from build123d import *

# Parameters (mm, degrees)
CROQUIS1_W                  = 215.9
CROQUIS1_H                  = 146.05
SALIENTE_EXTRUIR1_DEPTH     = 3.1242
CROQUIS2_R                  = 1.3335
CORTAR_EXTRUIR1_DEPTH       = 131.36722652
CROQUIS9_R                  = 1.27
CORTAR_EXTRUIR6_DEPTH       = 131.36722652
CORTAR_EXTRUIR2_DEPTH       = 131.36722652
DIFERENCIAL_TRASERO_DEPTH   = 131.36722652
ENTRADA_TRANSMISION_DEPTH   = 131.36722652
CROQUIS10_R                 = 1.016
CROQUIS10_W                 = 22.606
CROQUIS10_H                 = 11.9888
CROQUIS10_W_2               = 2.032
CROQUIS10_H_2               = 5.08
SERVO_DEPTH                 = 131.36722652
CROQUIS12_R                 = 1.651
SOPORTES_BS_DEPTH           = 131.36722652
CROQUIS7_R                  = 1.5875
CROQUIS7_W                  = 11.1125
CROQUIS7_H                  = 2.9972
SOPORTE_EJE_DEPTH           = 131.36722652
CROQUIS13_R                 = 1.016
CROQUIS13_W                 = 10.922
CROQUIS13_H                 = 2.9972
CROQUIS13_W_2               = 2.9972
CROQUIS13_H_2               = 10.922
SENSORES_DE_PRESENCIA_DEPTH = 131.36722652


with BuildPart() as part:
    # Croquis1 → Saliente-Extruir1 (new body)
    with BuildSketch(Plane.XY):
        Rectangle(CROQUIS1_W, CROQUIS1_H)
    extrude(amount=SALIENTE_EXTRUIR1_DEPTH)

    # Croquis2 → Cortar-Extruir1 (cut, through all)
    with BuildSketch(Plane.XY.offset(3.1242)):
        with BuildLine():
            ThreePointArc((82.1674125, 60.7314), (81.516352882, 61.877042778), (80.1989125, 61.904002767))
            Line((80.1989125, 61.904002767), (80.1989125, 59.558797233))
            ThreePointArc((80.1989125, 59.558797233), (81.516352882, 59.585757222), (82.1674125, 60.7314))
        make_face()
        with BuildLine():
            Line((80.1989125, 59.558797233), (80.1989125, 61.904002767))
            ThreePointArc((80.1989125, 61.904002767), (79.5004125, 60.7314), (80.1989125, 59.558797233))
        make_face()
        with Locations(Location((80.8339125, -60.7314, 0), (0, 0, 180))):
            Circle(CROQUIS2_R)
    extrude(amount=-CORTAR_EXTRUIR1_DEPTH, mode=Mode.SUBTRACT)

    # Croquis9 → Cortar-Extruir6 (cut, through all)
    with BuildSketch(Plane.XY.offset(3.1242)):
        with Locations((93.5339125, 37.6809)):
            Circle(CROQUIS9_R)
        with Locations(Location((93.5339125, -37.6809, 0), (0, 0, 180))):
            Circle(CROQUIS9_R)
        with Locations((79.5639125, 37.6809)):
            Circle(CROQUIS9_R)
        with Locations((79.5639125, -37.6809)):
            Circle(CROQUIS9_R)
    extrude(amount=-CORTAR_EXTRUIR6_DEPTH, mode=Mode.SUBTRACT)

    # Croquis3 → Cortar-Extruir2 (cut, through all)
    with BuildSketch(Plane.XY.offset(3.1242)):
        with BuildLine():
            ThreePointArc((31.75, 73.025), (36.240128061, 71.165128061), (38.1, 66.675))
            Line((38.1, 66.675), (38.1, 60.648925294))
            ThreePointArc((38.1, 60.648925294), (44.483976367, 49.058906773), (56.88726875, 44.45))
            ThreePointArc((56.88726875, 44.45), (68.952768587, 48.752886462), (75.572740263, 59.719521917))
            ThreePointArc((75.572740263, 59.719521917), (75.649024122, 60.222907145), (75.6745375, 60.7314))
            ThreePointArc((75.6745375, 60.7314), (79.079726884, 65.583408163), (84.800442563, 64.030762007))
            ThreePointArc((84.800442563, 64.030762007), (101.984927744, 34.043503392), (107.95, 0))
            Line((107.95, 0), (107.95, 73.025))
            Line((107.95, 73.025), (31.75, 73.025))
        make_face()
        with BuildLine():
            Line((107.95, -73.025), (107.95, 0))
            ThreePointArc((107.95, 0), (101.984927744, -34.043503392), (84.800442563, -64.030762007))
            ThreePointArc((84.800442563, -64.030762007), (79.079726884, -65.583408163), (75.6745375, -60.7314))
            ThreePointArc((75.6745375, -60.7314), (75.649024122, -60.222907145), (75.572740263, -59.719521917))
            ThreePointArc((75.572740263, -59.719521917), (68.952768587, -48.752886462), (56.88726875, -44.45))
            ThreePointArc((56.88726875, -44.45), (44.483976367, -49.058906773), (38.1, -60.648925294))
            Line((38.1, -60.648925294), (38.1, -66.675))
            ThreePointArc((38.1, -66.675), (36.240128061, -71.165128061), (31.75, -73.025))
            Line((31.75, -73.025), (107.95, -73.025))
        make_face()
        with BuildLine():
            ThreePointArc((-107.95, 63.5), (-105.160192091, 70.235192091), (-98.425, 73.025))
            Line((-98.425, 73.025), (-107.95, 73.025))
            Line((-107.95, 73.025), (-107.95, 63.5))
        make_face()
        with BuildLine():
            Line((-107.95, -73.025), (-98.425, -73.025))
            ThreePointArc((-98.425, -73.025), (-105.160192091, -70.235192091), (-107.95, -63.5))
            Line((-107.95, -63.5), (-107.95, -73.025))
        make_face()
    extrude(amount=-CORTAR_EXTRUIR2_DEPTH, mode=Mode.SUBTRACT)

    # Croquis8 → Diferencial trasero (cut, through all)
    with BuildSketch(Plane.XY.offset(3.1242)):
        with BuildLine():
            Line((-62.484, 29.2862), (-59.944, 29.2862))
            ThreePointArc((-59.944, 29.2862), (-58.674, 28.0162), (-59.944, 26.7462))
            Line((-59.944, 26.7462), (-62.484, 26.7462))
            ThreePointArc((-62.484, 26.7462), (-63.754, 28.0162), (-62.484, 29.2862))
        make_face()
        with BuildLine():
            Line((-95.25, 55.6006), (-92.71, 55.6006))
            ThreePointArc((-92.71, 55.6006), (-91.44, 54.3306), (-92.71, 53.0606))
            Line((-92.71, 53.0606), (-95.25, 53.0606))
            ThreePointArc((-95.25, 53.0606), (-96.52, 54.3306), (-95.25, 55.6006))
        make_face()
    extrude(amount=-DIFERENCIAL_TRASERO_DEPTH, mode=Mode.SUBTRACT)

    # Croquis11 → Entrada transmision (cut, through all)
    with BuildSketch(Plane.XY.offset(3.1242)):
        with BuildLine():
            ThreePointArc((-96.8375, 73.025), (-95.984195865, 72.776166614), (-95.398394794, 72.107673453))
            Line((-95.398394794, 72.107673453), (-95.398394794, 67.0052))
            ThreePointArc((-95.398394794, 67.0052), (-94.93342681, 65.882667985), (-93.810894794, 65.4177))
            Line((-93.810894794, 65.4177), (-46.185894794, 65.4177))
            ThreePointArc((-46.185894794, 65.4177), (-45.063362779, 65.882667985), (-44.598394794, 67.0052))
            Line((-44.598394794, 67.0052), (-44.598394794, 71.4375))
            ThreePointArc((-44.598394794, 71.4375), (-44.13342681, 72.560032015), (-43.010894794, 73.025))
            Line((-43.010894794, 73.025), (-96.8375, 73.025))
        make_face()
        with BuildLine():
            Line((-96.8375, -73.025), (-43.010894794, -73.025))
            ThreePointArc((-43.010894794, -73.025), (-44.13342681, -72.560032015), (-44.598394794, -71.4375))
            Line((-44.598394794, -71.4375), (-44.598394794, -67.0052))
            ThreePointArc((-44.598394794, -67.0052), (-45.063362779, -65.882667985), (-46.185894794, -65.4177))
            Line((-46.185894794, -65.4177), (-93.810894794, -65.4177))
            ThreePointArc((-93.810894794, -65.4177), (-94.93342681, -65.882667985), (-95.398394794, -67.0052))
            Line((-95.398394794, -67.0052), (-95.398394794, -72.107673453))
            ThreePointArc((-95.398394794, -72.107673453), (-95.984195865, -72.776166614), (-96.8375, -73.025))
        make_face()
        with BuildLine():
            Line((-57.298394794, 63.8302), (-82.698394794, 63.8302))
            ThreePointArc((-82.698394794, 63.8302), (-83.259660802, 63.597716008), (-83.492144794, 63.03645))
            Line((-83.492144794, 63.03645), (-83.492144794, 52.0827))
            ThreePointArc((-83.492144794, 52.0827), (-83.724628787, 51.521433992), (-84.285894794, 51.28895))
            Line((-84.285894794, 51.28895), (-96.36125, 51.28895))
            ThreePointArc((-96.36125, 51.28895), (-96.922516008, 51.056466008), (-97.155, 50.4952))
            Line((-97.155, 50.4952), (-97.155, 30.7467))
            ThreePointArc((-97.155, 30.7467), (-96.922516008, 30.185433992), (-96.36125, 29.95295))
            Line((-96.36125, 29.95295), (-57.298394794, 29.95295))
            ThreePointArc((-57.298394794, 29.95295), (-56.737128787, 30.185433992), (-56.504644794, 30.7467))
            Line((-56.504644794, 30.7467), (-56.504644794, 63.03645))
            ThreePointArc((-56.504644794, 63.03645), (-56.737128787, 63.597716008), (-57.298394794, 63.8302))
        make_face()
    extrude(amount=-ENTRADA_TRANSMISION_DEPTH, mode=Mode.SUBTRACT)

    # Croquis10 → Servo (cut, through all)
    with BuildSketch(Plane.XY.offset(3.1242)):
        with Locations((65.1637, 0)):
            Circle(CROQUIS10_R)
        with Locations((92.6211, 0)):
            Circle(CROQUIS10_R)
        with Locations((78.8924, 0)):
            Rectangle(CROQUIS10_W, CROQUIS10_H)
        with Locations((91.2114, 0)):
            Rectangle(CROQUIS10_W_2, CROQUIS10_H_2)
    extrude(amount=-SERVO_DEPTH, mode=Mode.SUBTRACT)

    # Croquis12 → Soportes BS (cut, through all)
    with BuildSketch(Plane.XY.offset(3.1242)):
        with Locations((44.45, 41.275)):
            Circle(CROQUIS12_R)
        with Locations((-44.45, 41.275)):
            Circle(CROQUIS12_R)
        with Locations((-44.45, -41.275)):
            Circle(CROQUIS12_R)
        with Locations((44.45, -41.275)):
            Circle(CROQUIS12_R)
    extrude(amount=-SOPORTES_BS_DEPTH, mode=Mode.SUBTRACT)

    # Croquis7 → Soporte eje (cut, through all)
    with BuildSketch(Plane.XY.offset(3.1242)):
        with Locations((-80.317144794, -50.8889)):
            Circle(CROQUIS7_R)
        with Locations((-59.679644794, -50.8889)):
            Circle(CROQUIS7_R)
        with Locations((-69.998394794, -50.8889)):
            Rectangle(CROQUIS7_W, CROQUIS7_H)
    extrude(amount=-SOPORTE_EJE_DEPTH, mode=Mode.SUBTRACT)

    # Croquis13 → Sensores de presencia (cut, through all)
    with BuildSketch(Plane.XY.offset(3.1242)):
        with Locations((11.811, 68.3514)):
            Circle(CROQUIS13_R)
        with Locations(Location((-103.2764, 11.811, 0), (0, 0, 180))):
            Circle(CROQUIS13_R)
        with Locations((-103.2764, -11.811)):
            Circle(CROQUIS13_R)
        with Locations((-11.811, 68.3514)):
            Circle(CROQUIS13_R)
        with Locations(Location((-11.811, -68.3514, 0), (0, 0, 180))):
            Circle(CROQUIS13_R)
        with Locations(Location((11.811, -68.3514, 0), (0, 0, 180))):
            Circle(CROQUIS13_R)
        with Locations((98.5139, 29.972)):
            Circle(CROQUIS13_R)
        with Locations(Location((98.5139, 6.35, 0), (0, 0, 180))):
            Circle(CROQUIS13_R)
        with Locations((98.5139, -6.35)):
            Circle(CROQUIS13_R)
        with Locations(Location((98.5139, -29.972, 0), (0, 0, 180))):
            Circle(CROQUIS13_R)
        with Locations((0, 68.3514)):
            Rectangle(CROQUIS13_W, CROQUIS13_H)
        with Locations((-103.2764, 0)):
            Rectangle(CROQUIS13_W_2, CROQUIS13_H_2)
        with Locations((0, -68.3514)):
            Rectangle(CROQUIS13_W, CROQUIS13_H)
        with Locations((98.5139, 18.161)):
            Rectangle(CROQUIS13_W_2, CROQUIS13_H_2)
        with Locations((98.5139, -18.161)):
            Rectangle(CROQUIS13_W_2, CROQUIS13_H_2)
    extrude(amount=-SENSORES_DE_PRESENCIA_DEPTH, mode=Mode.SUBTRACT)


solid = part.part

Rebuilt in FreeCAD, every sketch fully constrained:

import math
import FreeCAD as App
import Part
import Sketcher
from FreeCAD import Vector
Q = App.Units.Quantity

doc = App.newDocument("Part")
body = doc.addObject("PartDesign::Body", "Body")

# Sketch on XY plane
sketch1 = doc.addObject("Sketcher::SketchObject", "Sketch")
body.addObject(sketch1)
sketch1.AttachmentSupport = (doc.XY_Plane, [""])
sketch1.MapMode = "FlatFace"
sketch1.addGeometry([
    Part.LineSegment(Vector(-107.95, 73.025, 0), Vector(-107.95, -73.025, 0)),
    Part.LineSegment(Vector(-107.95, -73.025, 0), Vector(107.95, -73.025, 0)),
    Part.LineSegment(Vector(107.95, -73.025, 0), Vector(107.95, 73.025, 0)),
    Part.LineSegment(Vector(107.95, 73.025, 0), Vector(-107.95, 73.025, 0)),
], False)
sketch1.addConstraint([
    Sketcher.Constraint("Coincident", 0, 2, 1, 1),
    Sketcher.Constraint("Coincident", 1, 2, 2, 1),
    Sketcher.Constraint("Coincident", 2, 2, 3, 1),
    Sketcher.Constraint("Coincident", 3, 2, 0, 1),
    Sketcher.Constraint("Vertical", 0),
    Sketcher.Constraint("Horizontal", 1),
    Sketcher.Constraint("Vertical", 2),
    Sketcher.Constraint("Horizontal", 3),
    Sketcher.Constraint("Symmetric", 0, 2, 2, 2, -1, 1),
    Sketcher.Constraint("DistanceX", 1, 1, 1, 2, Q("8.5 in")),
    Sketcher.Constraint("DistanceY", 0, 2, 0, 1, Q("5.75 in")),
])
pad1 = doc.addObject("PartDesign::Pad", "Pad")
body.addObject(pad1)
pad1.Profile = sketch1
pad1.Length = Q("0.123 in")

# Sketch on XY plane
sketch2 = doc.addObject("Sketcher::SketchObject", "Sketch001")
body.addObject(sketch2)
sketch2.AttachmentSupport = (doc.XY_Plane, [""])
sketch2.MapMode = "FlatFace"
sketch2.AttachmentOffset = App.Placement(Vector(0, 0, 0.123 * 25.4), App.Rotation())
sketch2.addGeometry([
    Part.ArcOfCircle(Part.Circle(Vector(80.833912, 60.7314, 0), Vector(0, 0, 1), 1.3335), math.radians(0), math.radians(118.43689)),
    Part.ArcOfCircle(Part.Circle(Vector(80.833912, 60.7314, 0), Vector(0, 0, 1), 1.3335), math.radians(118.43689), math.radians(241.56311)),
    Part.ArcOfCircle(Part.Circle(Vector(80.833912, 60.7314, 0), Vector(0, 0, 1), 1.3335), math.radians(-118.43689), math.radians(0)),
    Part.Circle(Vector(80.833912, -60.7314, 0), Vector(0, 0, 1), 1.3335),
], False)
sketch2.addConstraint([
    Sketcher.Constraint("Tangent", 0, 2, 1, 1),
    Sketcher.Constraint("Tangent", 1, 2, 2, 1),
    Sketcher.Constraint("Tangent", 2, 2, 0, 1),
    Sketcher.Constraint("Equal", 2, 3),
    Sketcher.Constraint("Symmetric", 0, 3, 3, 3, -1),
    Sketcher.Constraint("Horizontal", 1, 3, 2, 2),
    Sketcher.Constraint("Vertical", 0, 2, 1, 2),
    Sketcher.Constraint("Diameter", 3, Q("0.105 in")),
    Sketcher.Constraint("DistanceY", -1, 1, 0, 3, Q("2.391 in")),
    Sketcher.Constraint("DistanceX", 0, 2, 1, 3, Q("0.025 in")),
    Sketcher.Constraint("DistanceX", -1, 1, 0, 3, 80.833912),
])
pocket1 = doc.addObject("PartDesign::Pocket", "Pocket")
body.addObject(pocket1)
pocket1.Profile = sketch2
pocket1.Type = "ThroughAll"

# Sketch on XY plane
sketch3 = doc.addObject("Sketcher::SketchObject", "Sketch002")
body.addObject(sketch3)
sketch3.AttachmentSupport = (doc.XY_Plane, [""])
sketch3.MapMode = "FlatFace"
sketch3.AttachmentOffset = App.Placement(Vector(0, 0, 0.123 * 25.4), App.Rotation())
sketch3.addGeometry([
    Part.Circle(Vector(93.533912, 37.6809, 0), Vector(0, 0, 1), 1.27),
    Part.Circle(Vector(93.533912, -37.6809, 0), Vector(0, 0, 1), 1.27),
    Part.Circle(Vector(79.563913, 37.6809, 0), Vector(0, 0, 1), 1.27),
    Part.Circle(Vector(79.563913, -37.6809, 0), Vector(0, 0, 1), 1.27),
], False)
sketch3.addConstraint([
    Sketcher.Constraint("Equal", 0, 1),
    Sketcher.Constraint("Equal", 1, 2),
    Sketcher.Constraint("Equal", 2, 3),
    Sketcher.Constraint("Symmetric", 0, 3, 1, 3, -1),
    Sketcher.Constraint("Symmetric", 2, 3, 3, 3, -1),
    Sketcher.Constraint("Horizontal", 0, 3, 2, 3),
    Sketcher.Constraint("Diameter", 0, Q("0.1 in")),
    Sketcher.Constraint("DistanceX", 2, 3, 0, 3, Q("0.55 in")),
    Sketcher.Constraint("DistanceY", 1, 3, 0, 3, Q("2.967 in")),
    Sketcher.Constraint("DistanceX", -1, 1, 0, 3, 93.533912),
])
pocket2 = doc.addObject("PartDesign::Pocket", "Pocket001")
body.addObject(pocket2)
pocket2.Profile = sketch3
pocket2.Type = "ThroughAll"

# Sketch on XY plane
sketch4 = doc.addObject("Sketcher::SketchObject", "Sketch003")
body.addObject(sketch4)
sketch4.AttachmentSupport = (doc.XY_Plane, [""])
sketch4.MapMode = "FlatFace"
sketch4.AttachmentOffset = App.Placement(Vector(0, 0, 0.123 * 25.4), App.Rotation())
sketch4.addGeometry([
    Part.ArcOfCircle(Part.Circle(Vector(31.75, 66.675, 0), Vector(0, 0, 1), 6.35), math.radians(0), math.radians(90)),  # 0
    Part.LineSegment(Vector(38.1, 66.675, 0), Vector(38.1, 60.648925, 0)),  # 1
    Part.ArcOfCircle(Part.Circle(Vector(56.887269, 63.444058, 0), Vector(0, 0, 1), 18.994058), math.radians(-171.537721), math.radians(-90)),  # 2
    Part.ArcOfCircle(Part.Circle(Vector(56.887269, 63.517563, 0), Vector(0, 0, 1), 19.067563), math.radians(-90), math.radians(-11.489515)),  # 3
    Part.ArcOfCircle(Part.Circle(Vector(70.594537, 60.7314, 0), Vector(0, 0, 1), 5.08), math.radians(-11.489514), math.radians(0)),  # 4
    Part.ArcOfCircle(Part.Circle(Vector(80.833912, 60.7314, 0), Vector(0, 0, 1), 5.159375), math.radians(39.753704), math.radians(180)),  # 5
    Part.ArcOfCircle(Part.Circle(Vector(7.821941, 0, 0), Vector(0, 0, 1), 100.128059), math.radians(0), math.radians(39.753704)),  # 6
    Part.LineSegment(Vector(107.95, 0, 0), Vector(107.95, 73.025, 0)),  # 7
    Part.LineSegment(Vector(107.95, 73.025, 0), Vector(31.75, 73.025, 0)),  # 8
    Part.LineSegment(Vector(107.95, -73.025, 0), Vector(107.95, 0, 0)),  # 9
    Part.ArcOfCircle(Part.Circle(Vector(7.821941, 0, 0), Vector(0, 0, 1), 100.128059), math.radians(-39.753704), math.radians(0)),  # 10
    Part.ArcOfCircle(Part.Circle(Vector(80.833912, -60.7314, 0), Vector(0, 0, 1), 5.159375), math.radians(180), math.radians(320.246296)),  # 11
    Part.ArcOfCircle(Part.Circle(Vector(70.594537, -60.7314, 0), Vector(0, 0, 1), 5.08), math.radians(0), math.radians(11.489514)),  # 12
    Part.ArcOfCircle(Part.Circle(Vector(56.887269, -63.517563, 0), Vector(0, 0, 1), 19.067563), math.radians(11.489515), math.radians(90)),  # 13
    Part.ArcOfCircle(Part.Circle(Vector(56.887269, -63.444058, 0), Vector(0, 0, 1), 18.994058), math.radians(90), math.radians(171.537721)),  # 14
    Part.LineSegment(Vector(38.1, -60.648925, 0), Vector(38.1, -66.675, 0)),  # 15
    Part.ArcOfCircle(Part.Circle(Vector(31.75, -66.675, 0), Vector(0, 0, 1), 6.35), math.radians(-90), math.radians(0)),  # 16
    Part.LineSegment(Vector(31.75, -73.025, 0), Vector(107.95, -73.025, 0)),  # 17
    Part.ArcOfCircle(Part.Circle(Vector(-98.425, 63.5, 0), Vector(0, 0, 1), 9.525), math.radians(90), math.radians(180)),  # 18
    Part.LineSegment(Vector(-98.425, 73.025, 0), Vector(-107.95, 73.025, 0)),  # 19
    Part.LineSegment(Vector(-107.95, 73.025, 0), Vector(-107.95, 63.5, 0)),  # 20
    Part.LineSegment(Vector(-107.95, -73.025, 0), Vector(-98.425, -73.025, 0)),  # 21
    Part.ArcOfCircle(Part.Circle(Vector(-98.425, -63.5, 0), Vector(0, 0, 1), 9.525), math.radians(180), math.radians(270)),  # 22
    Part.LineSegment(Vector(-107.95, -63.5, 0), Vector(-107.95, -73.025, 0)),  # 23
], False)
sketch4.addConstraint([
    Sketcher.Constraint("Tangent", 0, 1, 1, 1),
    Sketcher.Constraint("Coincident", 1, 2, 2, 1),
    Sketcher.Constraint("Tangent", 2, 2, 3, 1),
    Sketcher.Constraint("Tangent", 3, 2, 4, 1),
    Sketcher.Constraint("Tangent", 4, 2, 5, 2),
    Sketcher.Constraint("Tangent", 5, 1, 6, 2),
    Sketcher.Constraint("Tangent", 6, 1, 7, 1),
    Sketcher.Constraint("Coincident", 7, 2, 8, 1),
    Sketcher.Constraint("Tangent", 8, 2, 0, 2),
    Sketcher.Constraint("Tangent", 9, 2, 10, 2),
    Sketcher.Constraint("Tangent", 10, 1, 11, 2),
    Sketcher.Constraint("Tangent", 11, 1, 12, 1),
    Sketcher.Constraint("Tangent", 12, 2, 13, 1),
    Sketcher.Constraint("Tangent", 13, 2, 14, 1),
    Sketcher.Constraint("Coincident", 14, 2, 15, 1),
    Sketcher.Constraint("Tangent", 15, 2, 16, 2),
    Sketcher.Constraint("Tangent", 16, 1, 17, 1),
    Sketcher.Constraint("Coincident", 17, 2, 9, 1),
    Sketcher.Constraint("Tangent", 18, 1, 19, 1),
    Sketcher.Constraint("Coincident", 19, 2, 20, 1),
    Sketcher.Constraint("Tangent", 20, 2, 18, 2),
    Sketcher.Constraint("Tangent", 21, 2, 22, 2),
    Sketcher.Constraint("Tangent", 22, 1, 23, 1),
    Sketcher.Constraint("Coincident", 23, 2, 21, 1),
    Sketcher.Constraint("Vertical", 1),
    Sketcher.Constraint("Vertical", 7),
    Sketcher.Constraint("Horizontal", 8),
    Sketcher.Constraint("Vertical", 9),
    Sketcher.Constraint("Vertical", 15),
    Sketcher.Constraint("Horizontal", 17),
    Sketcher.Constraint("Horizontal", 19),
    Sketcher.Constraint("Vertical", 20),
    Sketcher.Constraint("Horizontal", 21),
    Sketcher.Constraint("Vertical", 23),
    Sketcher.Constraint("Coincident", 10, 3, 6, 3),
    Sketcher.Constraint("Equal", 6, 10),
    Sketcher.Constraint("Equal", 5, 11),
    Sketcher.Constraint("Equal", 4, 12),
    Sketcher.Constraint("Equal", 3, 13),
    Sketcher.Constraint("Equal", 2, 14),
    Sketcher.Constraint("Equal", 0, 16),
    Sketcher.Constraint("Equal", 18, 22),
    Sketcher.Constraint("Symmetric", 17, 2, 19, 2, -1, 1),
    Sketcher.Constraint("Symmetric", 7, 2, 23, 2, -1, 1),
    Sketcher.Constraint("Symmetric", 5, 3, 11, 3, -1),
    Sketcher.Constraint("Symmetric", 3, 3, 13, 3, -1),
    Sketcher.Constraint("Symmetric", 0, 3, 16, 3, -1),
    Sketcher.Constraint("Horizontal", 4, 3, 5, 3),
    Sketcher.Constraint("Vertical", 2, 3, 3, 3),
    Sketcher.Constraint("Vertical", 13, 3, 14, 3),
    Sketcher.Constraint("Radius", 4, Q("0.2 in")),
    Sketcher.Constraint("DistanceX", 8, 2, 8, 1, Q("3 in")),
    Sketcher.Constraint("Radius", 0, Q("0.25 in")),
    Sketcher.Constraint("Radius", 5, Q("0.203125 in")),
    Sketcher.Constraint("Radius", 18, Q("0.375 in")),
    Sketcher.Constraint("DistanceY", 22, 3, 18, 3, Q("5 in")),
    Sketcher.Constraint("DistanceX", -1, 1, 0, 1, Q("1.5 in")),
    Sketcher.Constraint("DistanceY", -1, 1, 2, 2, Q("1.75 in")),
    Sketcher.Constraint("DistanceY", -1, 1, 4, 3, Q("2.391 in")),
    Sketcher.Constraint("Radius", 6, 100.128059),
    Sketcher.Constraint("Radius", 2, 18.994058),
    Sketcher.Constraint("Radius", 3, 19.067563),
])
pocket3 = doc.addObject("PartDesign::Pocket", "Pocket002")
body.addObject(pocket3)
pocket3.Profile = sketch4
pocket3.Type = "ThroughAll"

# Sketch on XY plane
sketch5 = doc.addObject("Sketcher::SketchObject", "Sketch004")
body.addObject(sketch5)
sketch5.AttachmentSupport = (doc.XY_Plane, [""])
sketch5.MapMode = "FlatFace"
sketch5.AttachmentOffset = App.Placement(Vector(0, 0, 0.123 * 25.4), App.Rotation())
sketch5.addGeometry([
    Part.LineSegment(Vector(-59.944, 29.2862, 0), Vector(-62.484, 29.2862, 0)),  # 0
    Part.ArcOfCircle(Part.Circle(Vector(-62.484, 28.0162, 0), Vector(0, 0, 1), 1.27), math.radians(90), math.radians(270)),  # 1
    Part.LineSegment(Vector(-62.484, 26.7462, 0), Vector(-59.944, 26.7462, 0)),  # 2
    Part.ArcOfCircle(Part.Circle(Vector(-59.944, 28.0162, 0), Vector(0, 0, 1), 1.27), math.radians(-90), math.radians(90)),  # 3
    Part.LineSegment(Vector(-92.71, 55.6006, 0), Vector(-95.25, 55.6006, 0)),  # 4
    Part.ArcOfCircle(Part.Circle(Vector(-95.25, 54.3306, 0), Vector(0, 0, 1), 1.27), math.radians(90), math.radians(270)),  # 5
    Part.LineSegment(Vector(-95.25, 53.0606, 0), Vector(-92.71, 53.0606, 0)),  # 6
    Part.ArcOfCircle(Part.Circle(Vector(-92.71, 54.3306, 0), Vector(0, 0, 1), 1.27), math.radians(-90), math.radians(90)),  # 7
], False)
sketch5.addConstraint([
    Sketcher.Constraint("Tangent", 0, 2, 1, 1),
    Sketcher.Constraint("Tangent", 1, 2, 2, 1),
    Sketcher.Constraint("Tangent", 2, 2, 3, 1),
    Sketcher.Constraint("Tangent", 3, 2, 0, 1),
    Sketcher.Constraint("Tangent", 4, 2, 5, 1),
    Sketcher.Constraint("Tangent", 5, 2, 6, 1),
    Sketcher.Constraint("Tangent", 6, 2, 7, 1),
    Sketcher.Constraint("Tangent", 7, 2, 4, 1),
    Sketcher.Constraint("Horizontal", 0),
    Sketcher.Constraint("Horizontal", 2),
    Sketcher.Constraint("Horizontal", 4),
    Sketcher.Constraint("Horizontal", 6),
    Sketcher.Constraint("Equal", 3, 5),
    Sketcher.Constraint("Equal", 2, 4),
    Sketcher.Constraint("Radius", 1, Q("0.05 in")),
    Sketcher.Constraint("DistanceX", 0, 2, 0, 1, Q("0.1 in")),
    Sketcher.Constraint("DistanceX", 1, 3, -1, 1, Q("2.46 in")),
    Sketcher.Constraint("DistanceX", 5, 3, -1, 1, Q("3.75 in")),
    Sketcher.Constraint("DistanceY", -1, 1, 1, 3, Q("1.103 in")),
    Sketcher.Constraint("DistanceY", -1, 1, 5, 3, Q("2.139 in")),
])
pocket4 = doc.addObject("PartDesign::Pocket", "Pocket003")
body.addObject(pocket4)
pocket4.Profile = sketch5
pocket4.Type = "ThroughAll"

# Sketch on XY plane
sketch6 = doc.addObject("Sketcher::SketchObject", "Sketch005")
body.addObject(sketch6)
sketch6.AttachmentSupport = (doc.XY_Plane, [""])
sketch6.MapMode = "FlatFace"
sketch6.AttachmentOffset = App.Placement(Vector(0, 0, 0.123 * 25.4), App.Rotation())
sketch6.addGeometry([
    Part.ArcOfCircle(Part.Circle(Vector(-96.8375, 71.4375, 0), Vector(0, 0, 1), 1.5875), math.radians(24.970812), math.radians(90)),  # 0
    Part.LineSegment(Vector(-95.398395, 72.107673, 0), Vector(-95.398395, 67.0052, 0)),  # 1
    Part.ArcOfCircle(Part.Circle(Vector(-93.810895, 67.0052, 0), Vector(0, 0, 1), 1.5875), math.radians(180), math.radians(270)),  # 2
    Part.LineSegment(Vector(-93.810895, 65.4177, 0), Vector(-46.185895, 65.4177, 0)),  # 3
    Part.ArcOfCircle(Part.Circle(Vector(-46.185895, 67.0052, 0), Vector(0, 0, 1), 1.5875), math.radians(-90), math.radians(0)),  # 4
    Part.LineSegment(Vector(-44.598395, 67.0052, 0), Vector(-44.598395, 71.4375, 0)),  # 5
    Part.ArcOfCircle(Part.Circle(Vector(-43.010895, 71.4375, 0), Vector(0, 0, 1), 1.5875), math.radians(90), math.radians(180)),  # 6
    Part.LineSegment(Vector(-43.010895, 73.025, 0), Vector(-96.8375, 73.025, 0)),  # 7
    Part.LineSegment(Vector(-96.8375, -73.025, 0), Vector(-43.010895, -73.025, 0)),  # 8
    Part.ArcOfCircle(Part.Circle(Vector(-43.010895, -71.4375, 0), Vector(0, 0, 1), 1.5875), math.radians(180), math.radians(270)),  # 9
    Part.LineSegment(Vector(-44.598395, -71.4375, 0), Vector(-44.598395, -67.0052, 0)),  # 10
    Part.ArcOfCircle(Part.Circle(Vector(-46.185895, -67.0052, 0), Vector(0, 0, 1), 1.5875), math.radians(0), math.radians(90)),  # 11
    Part.LineSegment(Vector(-46.185895, -65.4177, 0), Vector(-93.810895, -65.4177, 0)),  # 12
    Part.ArcOfCircle(Part.Circle(Vector(-93.810895, -67.0052, 0), Vector(0, 0, 1), 1.5875), math.radians(90), math.radians(180)),  # 13
    Part.LineSegment(Vector(-95.398395, -67.0052, 0), Vector(-95.398395, -72.107673, 0)),  # 14
    Part.ArcOfCircle(Part.Circle(Vector(-96.8375, -71.4375, 0), Vector(0, 0, 1), 1.5875), math.radians(-90), math.radians(-24.970812)),  # 15
    Part.LineSegment(Vector(-57.298395, 63.8302, 0), Vector(-82.698395, 63.8302, 0)),  # 16
    Part.ArcOfCircle(Part.Circle(Vector(-82.698395, 63.03645, 0), Vector(0, 0, 1), 0.79375), math.radians(90), math.radians(180)),  # 17
    Part.LineSegment(Vector(-83.492145, 63.03645, 0), Vector(-83.492145, 52.0827, 0)),  # 18
    Part.ArcOfCircle(Part.Circle(Vector(-84.285895, 52.0827, 0), Vector(0, 0, 1), 0.79375), math.radians(-90), math.radians(0)),  # 19
    Part.LineSegment(Vector(-84.285895, 51.28895, 0), Vector(-96.36125, 51.28895, 0)),  # 20
    Part.ArcOfCircle(Part.Circle(Vector(-96.36125, 50.4952, 0), Vector(0, 0, 1), 0.79375), math.radians(90), math.radians(180)),  # 21
    Part.LineSegment(Vector(-97.155, 50.4952, 0), Vector(-97.155, 30.7467, 0)),  # 22
    Part.ArcOfCircle(Part.Circle(Vector(-96.36125, 30.7467, 0), Vector(0, 0, 1), 0.79375), math.radians(180), math.radians(270)),  # 23
    Part.LineSegment(Vector(-96.36125, 29.95295, 0), Vector(-57.298395, 29.95295, 0)),  # 24
    Part.ArcOfCircle(Part.Circle(Vector(-57.298395, 30.7467, 0), Vector(0, 0, 1), 0.79375), math.radians(-90), math.radians(0)),  # 25
    Part.LineSegment(Vector(-56.504645, 30.7467, 0), Vector(-56.504645, 63.03645, 0)),  # 26
    Part.ArcOfCircle(Part.Circle(Vector(-57.298395, 63.03645, 0), Vector(0, 0, 1), 0.79375), math.radians(0), math.radians(90)),  # 27
], False)
sketch6.addConstraint([
    Sketcher.Constraint("Coincident", 0, 1, 1, 1),
    Sketcher.Constraint("Tangent", 1, 2, 2, 1),
    Sketcher.Constraint("Tangent", 2, 2, 3, 1),
    Sketcher.Constraint("Tangent", 3, 2, 4, 1),
    Sketcher.Constraint("Tangent", 4, 2, 5, 1),
    Sketcher.Constraint("Tangent", 5, 2, 6, 2),
    Sketcher.Constraint("Tangent", 6, 1, 7, 1),
    Sketcher.Constraint("Tangent", 7, 2, 0, 2),
    Sketcher.Constraint("Tangent", 8, 2, 9, 2),
    Sketcher.Constraint("Tangent", 9, 1, 10, 1),
    Sketcher.Constraint("Tangent", 10, 2, 11, 1),
    Sketcher.Constraint("Tangent", 11, 2, 12, 1),
    Sketcher.Constraint("Tangent", 12, 2, 13, 1),
    Sketcher.Constraint("Tangent", 13, 2, 14, 1),
    Sketcher.Constraint("Coincident", 14, 2, 15, 2),
    Sketcher.Constraint("Tangent", 15, 1, 8, 1),
    Sketcher.Constraint("Tangent", 16, 2, 17, 1),
    Sketcher.Constraint("Tangent", 17, 2, 18, 1),
    Sketcher.Constraint("Tangent", 18, 2, 19, 2),
    Sketcher.Constraint("Tangent", 19, 1, 20, 1),
    Sketcher.Constraint("Tangent", 20, 2, 21, 1),
    Sketcher.Constraint("Tangent", 21, 2, 22, 1),
    Sketcher.Constraint("Tangent", 22, 2, 23, 1),
    Sketcher.Constraint("Tangent", 23, 2, 24, 1),
    Sketcher.Constraint("Tangent", 24, 2, 25, 1),
    Sketcher.Constraint("Tangent", 25, 2, 26, 1),
    Sketcher.Constraint("Tangent", 26, 2, 27, 1),
    Sketcher.Constraint("Tangent", 27, 2, 16, 1),
    Sketcher.Constraint("Vertical", 1),
    Sketcher.Constraint("Horizontal", 3),
    Sketcher.Constraint("Vertical", 5),
    Sketcher.Constraint("Horizontal", 7),
    Sketcher.Constraint("Horizontal", 8),
    Sketcher.Constraint("Vertical", 10),
    Sketcher.Constraint("Horizontal", 12),
    Sketcher.Constraint("Vertical", 14),
    Sketcher.Constraint("Horizontal", 16),
    Sketcher.Constraint("Vertical", 18),
    Sketcher.Constraint("Horizontal", 20),
    Sketcher.Constraint("Vertical", 22),
    Sketcher.Constraint("Horizontal", 24),
    Sketcher.Constraint("Vertical", 26),
    Sketcher.Constraint("Equal", 0, 2),
    Sketcher.Constraint("Equal", 2, 4),
    Sketcher.Constraint("Equal", 4, 6),
    Sketcher.Constraint("Equal", 6, 9),
    Sketcher.Constraint("Equal", 9, 11),
    Sketcher.Constraint("Equal", 11, 13),
    Sketcher.Constraint("Equal", 13, 15),
    Sketcher.Constraint("Equal", 17, 19),
    Sketcher.Constraint("Equal", 19, 21),
    Sketcher.Constraint("Equal", 21, 23),
    Sketcher.Constraint("Equal", 23, 25),
    Sketcher.Constraint("Equal", 25, 27),
    Sketcher.Constraint("Symmetric", 6, 3, 9, 3, -1),
    Sketcher.Constraint("Symmetric", 2, 3, 13, 3, -1),
    Sketcher.Constraint("Vertical", 0, 3, 15, 3),
    Sketcher.Constraint("DistanceX", 16, 2, 16, 1, Q("1 in")),
    Sketcher.Constraint("Radius", 0, Q("0.0625 in")),
    Sketcher.Constraint("Radius", 17, Q("0.03125 in")),
    Sketcher.Constraint("DistanceX", 2, 3, 6, 3, Q("2 in")),
    Sketcher.Constraint("DistanceX", 19, 3, 4, 3, Q("1.5 in")),
    Sketcher.Constraint("DistanceY", 21, 3, 2, 3, Q("0.65 in")),
    Sketcher.Constraint("DistanceY", 23, 3, 19, 3, Q("0.84 in")),
    Sketcher.Constraint("DistanceY", 5, 1, 5, 2, Q("0.1745 in")),
    Sketcher.Constraint("DistanceX", 0, 3, -1, 1, Q("3.8125 in")),
    Sketcher.Constraint("DistanceY", -1, 1, 0, 3, Q("2.8125 in")),
    Sketcher.Constraint("DistanceY", -1, 1, 16, 2, Q("2.513 in")),
    Sketcher.Constraint("DistanceX", 21, 2, -1, 1, Q("3.825 in")),
    Sketcher.Constraint("DistanceX", 7, 2, 7, 1, 53.826605),
])
pocket5 = doc.addObject("PartDesign::Pocket", "Pocket004")
body.addObject(pocket5)
pocket5.Profile = sketch6
pocket5.Type = "ThroughAll"

# Sketch on XY plane
sketch7 = doc.addObject("Sketcher::SketchObject", "Sketch006")
body.addObject(sketch7)
sketch7.AttachmentSupport = (doc.XY_Plane, [""])
sketch7.MapMode = "FlatFace"
sketch7.AttachmentOffset = App.Placement(Vector(0, 0, 0.123 * 25.4), App.Rotation())
sketch7.addGeometry([
    Part.Circle(Vector(65.1637, 0, 0), Vector(0, 0, 1), 1.016),  # 0
    Part.ArcOfCircle(Part.Circle(Vector(92.6211, 0, 0), Vector(0, 0, 1), 1.016), math.radians(-112.799031), math.radians(112.799031)),  # 1
    Part.LineSegment(Vector(92.2274, 0.93662, 0), Vector(92.2274, 2.54, 0)),  # 2
    Part.LineSegment(Vector(92.2274, 2.54, 0), Vector(90.1954, 2.54, 0)),  # 3
    Part.LineSegment(Vector(90.1954, 2.54, 0), Vector(90.1954, 5.9944, 0)),  # 4
    Part.LineSegment(Vector(90.1954, 5.9944, 0), Vector(67.5894, 5.9944, 0)),  # 5
    Part.LineSegment(Vector(67.5894, 5.9944, 0), Vector(67.5894, -5.9944, 0)),  # 6
    Part.LineSegment(Vector(67.5894, -5.9944, 0), Vector(90.1954, -5.9944, 0)),  # 7
    Part.LineSegment(Vector(90.1954, -5.9944, 0), Vector(90.1954, -2.54, 0)),  # 8
    Part.LineSegment(Vector(90.1954, -2.54, 0), Vector(92.2274, -2.54, 0)),  # 9
    Part.LineSegment(Vector(92.2274, -2.54, 0), Vector(92.2274, -0.93662, 0)),  # 10
], False)
sketch7.addConstraint([
    Sketcher.Constraint("Coincident", 1, 2, 2, 1),
    Sketcher.Constraint("Coincident", 2, 2, 3, 1),
    Sketcher.Constraint("Coincident", 3, 2, 4, 1),
    Sketcher.Constraint("Coincident", 4, 2, 5, 1),
    Sketcher.Constraint("Coincident", 5, 2, 6, 1),
    Sketcher.Constraint("Coincident", 6, 2, 7, 1),
    Sketcher.Constraint("Coincident", 7, 2, 8, 1),
    Sketcher.Constraint("Coincident", 8, 2, 9, 1),
    Sketcher.Constraint("Coincident", 9, 2, 10, 1),
    Sketcher.Constraint("Coincident", 10, 2, 1, 1),
    Sketcher.Constraint("Vertical", 2),
    Sketcher.Constraint("Horizontal", 3),
    Sketcher.Constraint("Vertical", 4),
    Sketcher.Constraint("Horizontal", 5),
    Sketcher.Constraint("Vertical", 6),
    Sketcher.Constraint("Horizontal", 7),
    Sketcher.Constraint("Vertical", 8),
    Sketcher.Constraint("Horizontal", 9),
    Sketcher.Constraint("Vertical", 10),
    Sketcher.Constraint("Equal", 0, 1),
    Sketcher.Constraint("Symmetric", 4, 2, 7, 2, -1),
    Sketcher.Constraint("Symmetric", 2, 2, 9, 2, -1),
    Sketcher.Constraint("PointOnObject", 0, 3, -1),
    Sketcher.Constraint("PointOnObject", 1, 3, -1),
    Sketcher.Constraint("Diameter", 0, Q("0.08 in")),
    Sketcher.Constraint("DistanceX", 3, 2, 3, 1, Q("0.08 in")),
    Sketcher.Constraint("DistanceX", 5, 2, 5, 1, Q("0.89 in")),
    Sketcher.Constraint("DistanceY", -1, 1, 2, 2, Q("0.1 in")),
    Sketcher.Constraint("DistanceY", 4, 1, 4, 2, Q("0.136 in")),
    Sketcher.Constraint("DistanceX", -1, 1, 1, 2, Q("3.631 in")),
    Sketcher.Constraint("DistanceX", 0, 3, 1, 3, Q("1.081 in")),
    Sketcher.Constraint("DistanceX", -1, 1, 0, 3, Q("2.5655 in")),
])
pocket6 = doc.addObject("PartDesign::Pocket", "Pocket005")
body.addObject(pocket6)
pocket6.Profile = sketch7
pocket6.Type = "ThroughAll"

# Sketch on XY plane
sketch8 = doc.addObject("Sketcher::SketchObject", "Sketch007")
body.addObject(sketch8)
sketch8.AttachmentSupport = (doc.XY_Plane, [""])
sketch8.MapMode = "FlatFace"
sketch8.AttachmentOffset = App.Placement(Vector(0, 0, 0.123 * 25.4), App.Rotation())
sketch8.addGeometry([
    Part.Circle(Vector(44.45, 41.275, 0), Vector(0, 0, 1), 1.651),
    Part.Circle(Vector(-44.45, 41.275, 0), Vector(0, 0, 1), 1.651),
    Part.Circle(Vector(-44.45, -41.275, 0), Vector(0, 0, 1), 1.651),
    Part.Circle(Vector(44.45, -41.275, 0), Vector(0, 0, 1), 1.651),
], False)
sketch8.addConstraint([
    Sketcher.Constraint("Equal", 0, 1),
    Sketcher.Constraint("Equal", 1, 2),
    Sketcher.Constraint("Equal", 2, 3),
    Sketcher.Constraint("Symmetric", 0, 3, 2, 3, -1, 1),
    Sketcher.Constraint("Symmetric", 1, 3, 3, 3, -1, 1),
    Sketcher.Constraint("Symmetric", 0, 3, 1, 3, -2),
    Sketcher.Constraint("Diameter", 0, Q("0.13 in")),
    Sketcher.Constraint("DistanceX", 1, 3, 0, 3, Q("3.5 in")),
    Sketcher.Constraint("DistanceY", 2, 3, 1, 3, Q("3.25 in")),
])
pocket7 = doc.addObject("PartDesign::Pocket", "Pocket006")
body.addObject(pocket7)
pocket7.Profile = sketch8
pocket7.Type = "ThroughAll"

# Sketch on XY plane
sketch9 = doc.addObject("Sketcher::SketchObject", "Sketch008")
body.addObject(sketch9)
sketch9.AttachmentSupport = (doc.XY_Plane, [""])
sketch9.MapMode = "FlatFace"
sketch9.AttachmentOffset = App.Placement(Vector(0, 0, 0.123 * 25.4), App.Rotation())
sketch9.addGeometry([
    Part.Circle(Vector(-80.317145, -50.8889, 0), Vector(0, 0, 1), 1.5875),  # 0
    Part.Circle(Vector(-59.679645, -50.8889, 0), Vector(0, 0, 1), 1.5875),  # 1
    Part.LineSegment(Vector(-75.554645, -49.3903, 0), Vector(-75.554645, -52.3875, 0)),  # 2
    Part.LineSegment(Vector(-75.554645, -52.3875, 0), Vector(-64.442145, -52.3875, 0)),  # 3
    Part.LineSegment(Vector(-64.442145, -52.3875, 0), Vector(-64.442145, -49.3903, 0)),  # 4
    Part.LineSegment(Vector(-64.442145, -49.3903, 0), Vector(-75.554645, -49.3903, 0)),  # 5
], False)
sketch9.addConstraint([
    Sketcher.Constraint("Coincident", 2, 2, 3, 1),
    Sketcher.Constraint("Coincident", 3, 2, 4, 1),
    Sketcher.Constraint("Coincident", 4, 2, 5, 1),
    Sketcher.Constraint("Coincident", 5, 2, 2, 1),
    Sketcher.Constraint("Vertical", 2),
    Sketcher.Constraint("Horizontal", 3),
    Sketcher.Constraint("Vertical", 4),
    Sketcher.Constraint("Horizontal", 5),
    Sketcher.Constraint("Equal", 0, 1),
    Sketcher.Constraint("Horizontal", 0, 3, 1, 3),
    Sketcher.Constraint("Diameter", 0, Q("0.125 in")),
    Sketcher.Constraint("DistanceX", 3, 1, 3, 2, Q("0.4375 in")),
    Sketcher.Constraint("DistanceY", 2, 2, 2, 1, Q("0.118 in")),
    Sketcher.Constraint("DistanceY", 2, 2, -1, 1, Q("2.0625 in")),
    Sketcher.Constraint("DistanceX", 0, 3, 1, 3, Q("0.8125 in")),
    Sketcher.Constraint("DistanceX", 0, 3, 2, 2, Q("0.1875 in")),
    Sketcher.Constraint("DistanceY", 2, 2, 0, 3, Q("0.059 in")),
    Sketcher.Constraint("DistanceX", 0, 3, -1, 1, 80.317145),
])
pocket8 = doc.addObject("PartDesign::Pocket", "Pocket007")
body.addObject(pocket8)
pocket8.Profile = sketch9
pocket8.Type = "ThroughAll"

# Sketch on XY plane
sketch10 = doc.addObject("Sketcher::SketchObject", "Sketch009")
body.addObject(sketch10)
sketch10.AttachmentSupport = (doc.XY_Plane, [""])
sketch10.MapMode = "FlatFace"
sketch10.AttachmentOffset = App.Placement(Vector(0, 0, 0.123 * 25.4), App.Rotation())
sketch10.addGeometry([
    Part.Circle(Vector(11.811, 68.3514, 0), Vector(0, 0, 1), 1.016),  # 0
    Part.Circle(Vector(-103.2764, 11.811, 0), Vector(0, 0, 1), 1.016),  # 1
    Part.Circle(Vector(-103.2764, -11.811, 0), Vector(0, 0, 1), 1.016),  # 2
    Part.Circle(Vector(-11.811, 68.3514, 0), Vector(0, 0, 1), 1.016),  # 3
    Part.Circle(Vector(-11.811, -68.3514, 0), Vector(0, 0, 1), 1.016),  # 4
    Part.Circle(Vector(11.811, -68.3514, 0), Vector(0, 0, 1), 1.016),  # 5
    Part.Circle(Vector(98.5139, 29.972, 0), Vector(0, 0, 1), 1.016),  # 6
    Part.Circle(Vector(98.5139, 6.35, 0), Vector(0, 0, 1), 1.016),  # 7
    Part.Circle(Vector(98.5139, -6.35, 0), Vector(0, 0, 1), 1.016),  # 8
    Part.Circle(Vector(98.5139, -29.972, 0), Vector(0, 0, 1), 1.016),  # 9
    Part.LineSegment(Vector(-5.461, 69.85, 0), Vector(-5.461, 66.8528, 0)),  # 10
    Part.LineSegment(Vector(-5.461, 66.8528, 0), Vector(5.461, 66.8528, 0)),  # 11
    Part.LineSegment(Vector(5.461, 66.8528, 0), Vector(5.461, 69.85, 0)),  # 12
    Part.LineSegment(Vector(5.461, 69.85, 0), Vector(-5.461, 69.85, 0)),  # 13
    Part.LineSegment(Vector(-104.775, 5.461, 0), Vector(-104.775, -5.461, 0)),  # 14
    Part.LineSegment(Vector(-104.775, -5.461, 0), Vector(-101.7778, -5.461, 0)),  # 15
    Part.LineSegment(Vector(-101.7778, -5.461, 0), Vector(-101.7778, 5.461, 0)),  # 16
    Part.LineSegment(Vector(-101.7778, 5.461, 0), Vector(-104.775, 5.461, 0)),  # 17
    Part.LineSegment(Vector(-5.461, -66.8528, 0), Vector(-5.461, -69.85, 0)),  # 18
    Part.LineSegment(Vector(-5.461, -69.85, 0), Vector(5.461, -69.85, 0)),  # 19
    Part.LineSegment(Vector(5.461, -69.85, 0), Vector(5.461, -66.8528, 0)),  # 20
    Part.LineSegment(Vector(5.461, -66.8528, 0), Vector(-5.461, -66.8528, 0)),  # 21
    Part.LineSegment(Vector(97.0153, 23.622, 0), Vector(97.0153, 12.7, 0)),  # 22
    Part.LineSegment(Vector(97.0153, 12.7, 0), Vector(100.0125, 12.7, 0)),  # 23
    Part.LineSegment(Vector(100.0125, 12.7, 0), Vector(100.0125, 23.622, 0)),  # 24
    Part.LineSegment(Vector(100.0125, 23.622, 0), Vector(97.0153, 23.622, 0)),  # 25
    Part.LineSegment(Vector(97.0153, -12.7, 0), Vector(97.0153, -23.622, 0)),  # 26
    Part.LineSegment(Vector(97.0153, -23.622, 0), Vector(100.0125, -23.622, 0)),  # 27
    Part.LineSegment(Vector(100.0125, -23.622, 0), Vector(100.0125, -12.7, 0)),  # 28
    Part.LineSegment(Vector(100.0125, -12.7, 0), Vector(97.0153, -12.7, 0)),  # 29
], False)
sketch10.addConstraint([
    Sketcher.Constraint("Coincident", 10, 2, 11, 1),
    Sketcher.Constraint("Coincident", 11, 2, 12, 1),
    Sketcher.Constraint("Coincident", 12, 2, 13, 1),
    Sketcher.Constraint("Coincident", 13, 2, 10, 1),
    Sketcher.Constraint("Coincident", 14, 2, 15, 1),
    Sketcher.Constraint("Coincident", 15, 2, 16, 1),
    Sketcher.Constraint("Coincident", 16, 2, 17, 1),
    Sketcher.Constraint("Coincident", 17, 2, 14, 1),
    Sketcher.Constraint("Coincident", 18, 2, 19, 1),
    Sketcher.Constraint("Coincident", 19, 2, 20, 1),
    Sketcher.Constraint("Coincident", 20, 2, 21, 1),
    Sketcher.Constraint("Coincident", 21, 2, 18, 1),
    Sketcher.Constraint("Coincident", 22, 2, 23, 1),
    Sketcher.Constraint("Coincident", 23, 2, 24, 1),
    Sketcher.Constraint("Coincident", 24, 2, 25, 1),
    Sketcher.Constraint("Coincident", 25, 2, 22, 1),
    Sketcher.Constraint("Coincident", 26, 2, 27, 1),
    Sketcher.Constraint("Coincident", 27, 2, 28, 1),
    Sketcher.Constraint("Coincident", 28, 2, 29, 1),
    Sketcher.Constraint("Coincident", 29, 2, 26, 1),
    Sketcher.Constraint("Vertical", 10),
    Sketcher.Constraint("Horizontal", 11),
    Sketcher.Constraint("Vertical", 12),
    Sketcher.Constraint("Horizontal", 13),
    Sketcher.Constraint("Vertical", 14),
    Sketcher.Constraint("Horizontal", 15),
    Sketcher.Constraint("Vertical", 16),
    Sketcher.Constraint("Horizontal", 17),
    Sketcher.Constraint("Vertical", 18),
    Sketcher.Constraint("Horizontal", 19),
    Sketcher.Constraint("Vertical", 20),
    Sketcher.Constraint("Horizontal", 21),
    Sketcher.Constraint("Vertical", 22),
    Sketcher.Constraint("Horizontal", 23),
    Sketcher.Constraint("Vertical", 24),
    Sketcher.Constraint("Horizontal", 25),
    Sketcher.Constraint("Vertical", 26),
    Sketcher.Constraint("Horizontal", 27),
    Sketcher.Constraint("Vertical", 28),
    Sketcher.Constraint("Horizontal", 29),
    Sketcher.Constraint("Equal", 0, 1),
    Sketcher.Constraint("Equal", 1, 2),
    Sketcher.Constraint("Equal", 2, 3),
    Sketcher.Constraint("Equal", 3, 4),
    Sketcher.Constraint("Equal", 4, 5),
    Sketcher.Constraint("Equal", 5, 6),
    Sketcher.Constraint("Equal", 6, 7),
    Sketcher.Constraint("Equal", 7, 8),
    Sketcher.Constraint("Equal", 8, 9),
    Sketcher.Constraint("Symmetric", 0, 3, 4, 3, -1, 1),
    Sketcher.Constraint("Symmetric", 3, 3, 5, 3, -1, 1),
    Sketcher.Constraint("Symmetric", 12, 2, 18, 2, -1, 1),
    Sketcher.Constraint("Symmetric", 10, 2, 20, 2, -1, 1),
    Sketcher.Constraint("Symmetric", 0, 3, 3, 3, -2),
    Sketcher.Constraint("Symmetric", 1, 3, 2, 3, -1),
    Sketcher.Constraint("Symmetric", 7, 3, 8, 3, -1),
    Sketcher.Constraint("Symmetric", 6, 3, 9, 3, -1),
    Sketcher.Constraint("Symmetric", 25, 2, 26, 2, -1),
    Sketcher.Constraint("Symmetric", 23, 2, 28, 2, -1),
    Sketcher.Constraint("Vertical", 6, 3, 7, 3),
    Sketcher.Constraint("Vertical", 13, 2, 18, 2),
    Sketcher.Constraint("Equal", 17, 23),
    Sketcher.Constraint("Equal", 29, 10),
    Sketcher.Constraint("Equal", 21, 14),
    Sketcher.Constraint("Equal", 16, 22),
    Sketcher.Constraint("Diameter", 0, Q("0.08 in")),
    Sketcher.Constraint("DistanceX", 11, 1, 11, 2, Q("0.43 in")),
    Sketcher.Constraint("DistanceY", -1, 1, 22, 2, Q("0.5 in")),
    Sketcher.Constraint("DistanceY", 8, 3, 7, 3, Q("0.5 in")),
    Sketcher.Constraint("DistanceY", 19, 2, 8, 3, Q("2.5 in")),
    Sketcher.Constraint("DistanceX", 15, 1, 15, 2, Q("0.118 in")),
    Sketcher.Constraint("DistanceY", -1, 1, 6, 3, Q("1.18 in")),
    Sketcher.Constraint("DistanceY", 2, 3, 1, 3, Q("0.93 in")),
    Sketcher.Constraint("DistanceX", 3, 3, 0, 3, Q("0.93 in")),
    Sketcher.Constraint("DistanceY", 2, 3, 14, 2, Q("0.25 in")),
    Sketcher.Constraint("DistanceX", 14, 2, 4, 3, Q("3.66 in")),
    Sketcher.Constraint("DistanceY", -1, 1, 0, 3, Q("2.691 in")),
    Sketcher.Constraint("DistanceX", 1, 3, -1, 1, Q("4.066 in")),
    Sketcher.Constraint("DistanceX", -1, 1, 23, 2, Q("3.9375 in")),
    Sketcher.Constraint("DistanceX", 22, 2, 7, 3, Q("0.059 in")),
])
pocket9 = doc.addObject("PartDesign::Pocket", "Pocket008")
body.addObject(pocket9)
pocket9.Profile = sketch10
pocket9.Type = "ThroughAll"

doc.recompute()
